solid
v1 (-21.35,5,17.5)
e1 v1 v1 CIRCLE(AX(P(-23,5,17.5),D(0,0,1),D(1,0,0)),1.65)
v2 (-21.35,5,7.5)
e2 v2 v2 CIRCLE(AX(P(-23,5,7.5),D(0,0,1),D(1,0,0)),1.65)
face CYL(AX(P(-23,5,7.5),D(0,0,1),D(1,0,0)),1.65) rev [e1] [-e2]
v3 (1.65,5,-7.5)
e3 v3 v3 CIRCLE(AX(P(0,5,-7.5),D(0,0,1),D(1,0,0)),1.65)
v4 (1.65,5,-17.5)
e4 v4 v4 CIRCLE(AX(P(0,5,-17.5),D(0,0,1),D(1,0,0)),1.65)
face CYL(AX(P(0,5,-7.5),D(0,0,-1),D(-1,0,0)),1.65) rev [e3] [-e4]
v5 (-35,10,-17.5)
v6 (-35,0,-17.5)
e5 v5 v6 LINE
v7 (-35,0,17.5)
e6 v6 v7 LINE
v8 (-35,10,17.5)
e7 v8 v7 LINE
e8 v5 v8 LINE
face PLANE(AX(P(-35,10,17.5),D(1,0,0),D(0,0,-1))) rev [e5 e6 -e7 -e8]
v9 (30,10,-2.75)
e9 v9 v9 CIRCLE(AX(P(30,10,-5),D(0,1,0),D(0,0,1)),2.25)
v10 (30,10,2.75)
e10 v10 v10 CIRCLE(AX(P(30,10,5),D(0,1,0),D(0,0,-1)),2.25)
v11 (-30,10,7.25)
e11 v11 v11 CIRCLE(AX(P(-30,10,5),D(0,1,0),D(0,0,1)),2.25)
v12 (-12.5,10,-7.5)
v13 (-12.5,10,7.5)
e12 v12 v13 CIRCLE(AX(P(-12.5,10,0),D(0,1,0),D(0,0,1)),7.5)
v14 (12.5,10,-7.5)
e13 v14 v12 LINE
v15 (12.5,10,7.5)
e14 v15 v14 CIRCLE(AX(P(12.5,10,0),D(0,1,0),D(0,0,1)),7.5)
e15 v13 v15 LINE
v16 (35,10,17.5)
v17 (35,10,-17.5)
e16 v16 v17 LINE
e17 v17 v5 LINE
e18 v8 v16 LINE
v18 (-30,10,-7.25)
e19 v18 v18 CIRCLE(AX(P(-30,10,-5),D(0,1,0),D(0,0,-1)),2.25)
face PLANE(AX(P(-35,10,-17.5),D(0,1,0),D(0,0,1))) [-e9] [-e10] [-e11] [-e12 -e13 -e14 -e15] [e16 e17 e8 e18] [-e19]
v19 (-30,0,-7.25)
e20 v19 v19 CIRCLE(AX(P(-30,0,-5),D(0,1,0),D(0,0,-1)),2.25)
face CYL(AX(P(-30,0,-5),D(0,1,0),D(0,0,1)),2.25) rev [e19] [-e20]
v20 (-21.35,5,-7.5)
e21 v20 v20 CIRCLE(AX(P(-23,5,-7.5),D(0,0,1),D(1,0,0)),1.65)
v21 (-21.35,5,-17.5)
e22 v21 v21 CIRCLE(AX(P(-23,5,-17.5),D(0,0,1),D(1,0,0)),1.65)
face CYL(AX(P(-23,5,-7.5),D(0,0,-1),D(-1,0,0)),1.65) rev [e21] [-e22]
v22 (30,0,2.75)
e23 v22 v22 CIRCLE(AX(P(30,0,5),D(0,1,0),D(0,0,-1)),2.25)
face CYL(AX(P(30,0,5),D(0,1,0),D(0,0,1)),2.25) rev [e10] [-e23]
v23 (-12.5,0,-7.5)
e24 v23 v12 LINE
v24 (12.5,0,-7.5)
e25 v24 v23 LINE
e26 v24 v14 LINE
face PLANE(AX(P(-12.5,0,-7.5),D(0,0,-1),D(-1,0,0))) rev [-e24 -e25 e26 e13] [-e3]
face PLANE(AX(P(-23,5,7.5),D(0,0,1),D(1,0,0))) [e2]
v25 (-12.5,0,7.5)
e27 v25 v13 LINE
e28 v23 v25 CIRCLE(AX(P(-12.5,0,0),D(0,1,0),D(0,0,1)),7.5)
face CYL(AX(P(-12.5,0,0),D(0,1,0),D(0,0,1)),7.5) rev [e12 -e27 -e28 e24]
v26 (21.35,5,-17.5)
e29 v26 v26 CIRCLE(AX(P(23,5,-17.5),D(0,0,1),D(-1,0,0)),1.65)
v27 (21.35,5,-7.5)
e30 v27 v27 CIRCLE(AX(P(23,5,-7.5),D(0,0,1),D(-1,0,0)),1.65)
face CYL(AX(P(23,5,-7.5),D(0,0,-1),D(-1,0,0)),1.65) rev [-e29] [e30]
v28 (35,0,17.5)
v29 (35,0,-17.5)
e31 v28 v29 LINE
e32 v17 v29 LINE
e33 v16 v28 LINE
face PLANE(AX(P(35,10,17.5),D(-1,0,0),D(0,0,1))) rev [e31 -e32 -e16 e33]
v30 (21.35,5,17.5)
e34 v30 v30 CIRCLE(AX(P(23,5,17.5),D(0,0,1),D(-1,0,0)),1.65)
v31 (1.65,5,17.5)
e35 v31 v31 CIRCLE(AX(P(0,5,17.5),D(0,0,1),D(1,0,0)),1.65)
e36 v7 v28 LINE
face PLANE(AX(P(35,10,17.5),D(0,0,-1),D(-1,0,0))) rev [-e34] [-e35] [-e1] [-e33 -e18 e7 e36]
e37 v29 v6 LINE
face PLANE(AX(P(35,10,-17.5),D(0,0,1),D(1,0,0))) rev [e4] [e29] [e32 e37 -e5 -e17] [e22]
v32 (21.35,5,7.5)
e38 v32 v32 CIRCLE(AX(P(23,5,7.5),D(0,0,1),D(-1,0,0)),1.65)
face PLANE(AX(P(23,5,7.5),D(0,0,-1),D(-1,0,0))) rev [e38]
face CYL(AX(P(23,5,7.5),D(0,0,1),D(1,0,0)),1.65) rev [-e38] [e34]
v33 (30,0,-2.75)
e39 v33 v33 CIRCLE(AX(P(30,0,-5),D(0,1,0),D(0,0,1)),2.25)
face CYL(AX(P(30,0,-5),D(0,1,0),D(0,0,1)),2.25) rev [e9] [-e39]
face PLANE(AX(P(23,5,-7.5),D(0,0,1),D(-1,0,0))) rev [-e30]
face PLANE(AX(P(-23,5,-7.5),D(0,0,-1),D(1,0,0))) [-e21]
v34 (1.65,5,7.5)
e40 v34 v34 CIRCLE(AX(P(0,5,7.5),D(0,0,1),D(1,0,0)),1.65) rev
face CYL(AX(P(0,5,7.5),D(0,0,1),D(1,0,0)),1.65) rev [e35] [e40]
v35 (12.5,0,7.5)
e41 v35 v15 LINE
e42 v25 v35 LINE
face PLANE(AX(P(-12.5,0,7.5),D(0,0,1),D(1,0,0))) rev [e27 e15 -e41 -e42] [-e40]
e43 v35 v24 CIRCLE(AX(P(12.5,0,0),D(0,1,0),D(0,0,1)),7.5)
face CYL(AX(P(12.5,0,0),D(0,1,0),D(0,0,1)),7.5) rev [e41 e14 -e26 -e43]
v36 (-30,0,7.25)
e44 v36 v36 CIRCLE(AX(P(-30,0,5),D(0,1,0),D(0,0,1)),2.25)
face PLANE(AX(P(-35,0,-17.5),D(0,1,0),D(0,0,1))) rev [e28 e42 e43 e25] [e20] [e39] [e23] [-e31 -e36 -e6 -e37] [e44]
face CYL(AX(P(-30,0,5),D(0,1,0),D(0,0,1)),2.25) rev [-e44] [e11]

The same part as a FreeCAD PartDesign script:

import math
import FreeCAD as App
import Part
import Sketcher
from FreeCAD import Vector


def add_polygon(sketch, points):
    """Adds a closed chain of lines whose ends are joined by coincident constraints."""
    first, n = sketch.GeometryCount, len(points)
    for a, b in zip(points, points[1:] + points[:1]):
        sketch.addGeometry(Part.LineSegment(App.Vector(*a, 0), App.Vector(*b, 0)), False)
    for i in range(n):
        sketch.addConstraint(Sketcher.Constraint("Coincident", first + i, 2, first + (i + 1) % n, 1))

doc = App.newDocument("Part")
body = doc.addObject("PartDesign::Body", "Body")

sketch1 = body.newObject("Sketcher::SketchObject", "Sketch")
sketch1.AttachmentSupport = (doc.getObject("XZ_Plane"), [""])
sketch1.MapMode = "FlatFace"
add_polygon(sketch1, [(-35, -18), (-35, 18), (35, 18), (35, -18)])
sketch1.addConstraint(Sketcher.Constraint("Vertical", 0))
sketch1.addConstraint(Sketcher.Constraint("Horizontal", 1))
sketch1.addConstraint(Sketcher.Constraint("Vertical", 2))
sketch1.addConstraint(Sketcher.Constraint("Horizontal", 3))
sketch1.addConstraint(Sketcher.Constraint("Symmetric", 0, 2, 2, 2, -1, 1))
sketch1.addConstraint(Sketcher.Constraint("DistanceX", 1, 1, 1, 2, 70.0))
sketch1.addConstraint(Sketcher.Constraint("DistanceY", 0, 1, 0, 2, 35.0))
pad1 = body.newObject("PartDesign::Pad", "Pad")
pad1.Profile = sketch1
pad1.Length = 10
pad1.Reversed = True

sketch2 = body.newObject("Sketcher::SketchObject", "Sketch001")
sketch2.AttachmentSupport = (doc.getObject("XY_Plane"), [""])
sketch2.MapMode = "FlatFace"
sketch2.AttachmentOffset = App.Placement(Vector(0, 0, 17.5), App.Rotation())
sketch2.addGeometry(Part.Circle(Vector(-23, 5, 0), Vector(0, 0, 1), 1.6), False)
sketch2.addGeometry(Part.Circle(Vector(0, 5, 0), Vector(0, 0, 1), 1.6), False)
sketch2.addGeometry(Part.Circle(Vector(23, 5, 0), Vector(0, 0, 1), 1.6), False)
sketch2.addConstraint(Sketcher.Constraint("Equal", 0, 1))
sketch2.addConstraint(Sketcher.Constraint("Equal", 1, 2))
sketch2.addConstraint(Sketcher.Constraint("Symmetric", 0, 3, 2, 3, -2))
sketch2.addConstraint(Sketcher.Constraint("PointOnObject", 1, 3, -2))
sketch2.addConstraint(Sketcher.Constraint("Horizontal", 0, 3, 1, 3))
sketch2.addConstraint(Sketcher.Constraint("Diameter", 0, 3.3))
sketch2.addConstraint(Sketcher.Constraint("DistanceX", 0, 3, -1, 1, 23.0))
sketch2.addConstraint(Sketcher.Constraint("DistanceY", -1, 1, 0, 3, 5.0))
pocket1 = body.newObject("PartDesign::Pocket", "Pocket")
pocket1.Profile = sketch2
pocket1.Length = 10

sketch3 = body.newObject("Sketcher::SketchObject", "Sketch002")
sketch3.AttachmentSupport = (doc.getObject("XZ_Plane"), [""])
sketch3.MapMode = "FlatFace"
sketch3.AttachmentOffset = App.Placement(Vector(0, 0, -10), App.Rotation())
sketch3.addGeometry(Part.LineSegment(Vector(12, -8, 0), Vector(-12, -8, 0)), False)
sketch3.addGeometry(Part.ArcOfCircle(Part.Circle(Vector(-12, 0, 0), Vector(0, 0, 1), 8), math.radians(90), math.radians(270)), False)
sketch3.addGeometry(Part.LineSegment(Vector(-12, 8, 0), Vector(12, 8, 0)), False)
sketch3.addGeometry(Part.ArcOfCircle(Part.Circle(Vector(12, 0, 0), Vector(0, 0, 1), 8), math.radians(-90), math.radians(90)), False)
sketch3.addConstraint(Sketcher.Constraint("Tangent", 0, 2, 1, 2))
sketch3.addConstraint(Sketcher.Constraint("Tangent", 1, 1, 2, 1))
sketch3.addConstraint(Sketcher.Constraint("Tangent", 2, 2, 3, 2))
sketch3.addConstraint(Sketcher.Constraint("Tangent", 3, 1, 0, 1))
sketch3.addConstraint(Sketcher.Constraint("Horizontal", 0))
sketch3.addConstraint(Sketcher.Constraint("Horizontal", 2))
sketch3.addConstraint(Sketcher.Constraint("Symmetric", 1, 3, 3, 3, -1, 1))
sketch3.addConstraint(Sketcher.Constraint("Radius", 1, 7.5))
sketch3.addConstraint(Sketcher.Constraint("DistanceX", 0, 2, 0, 1, 25.0))
pocket2 = body.newObject("PartDesign::Pocket", "Pocket001")
pocket2.Profile = sketch3
pocket2.Length = 10
pocket2.Reversed = True

sketch4 = body.newObject("Sketcher::SketchObject", "Sketch003")
sketch4.AttachmentSupport = (doc.getObject("XZ_Plane"), [""])
sketch4.MapMode = "FlatFace"
sketch4.AttachmentOffset = App.Placement(Vector(0, 0, -10), App.Rotation())
sketch4.addGeometry(Part.Circle(Vector(-30, 5, 0), Vector(0, 0, 1), 2.2), False)
sketch4.addGeometry(Part.Circle(Vector(-30, -5, 0), Vector(0, 0, 1), 2.2), False)
sketch4.addGeometry(Part.Circle(Vector(30, 5, 0), Vector(0, 0, 1), 2.2), False)
sketch4.addGeometry(Part.Circle(Vector(30, -5, 0), Vector(0, 0, 1), 2.2), False)
sketch4.addConstraint(Sketcher.Constraint("Equal", 0, 1))
sketch4.addConstraint(Sketcher.Constraint("Equal", 1, 2))
sketch4.addConstraint(Sketcher.Constraint("Equal", 2, 3))
sketch4.addConstraint(Sketcher.Constraint("Symmetric", 1, 3, 2, 3, -1, 1))
sketch4.addConstraint(Sketcher.Constraint("Symmetric", 0, 3, 3, 3, -1, 1))
sketch4.addConstraint(Sketcher.Constraint("Symmetric", 0, 3, 2, 3, -2))
sketch4.addConstraint(Sketcher.Constraint("Diameter", 0, 4.5))
sketch4.addConstraint(Sketcher.Constraint("DistanceX", 0, 3, -1, 1, 30.0))
sketch4.addConstraint(Sketcher.Constraint("DistanceY", -1, 1, 0, 3, 5.0))
pocket3 = body.newObject("PartDesign::Pocket", "Pocket002")
pocket3.Profile = sketch4
pocket3.Length = 10
pocket3.Reversed = True
doc.recompute()

mirrored = body.newObject("PartDesign::Mirrored", "Mirrored")
mirrored.Originals = [pocket1]
mirrored.MirrorPlane = (doc.getObject("XY_Plane"), [""])
body.Tip = mirrored

doc.recompute()
